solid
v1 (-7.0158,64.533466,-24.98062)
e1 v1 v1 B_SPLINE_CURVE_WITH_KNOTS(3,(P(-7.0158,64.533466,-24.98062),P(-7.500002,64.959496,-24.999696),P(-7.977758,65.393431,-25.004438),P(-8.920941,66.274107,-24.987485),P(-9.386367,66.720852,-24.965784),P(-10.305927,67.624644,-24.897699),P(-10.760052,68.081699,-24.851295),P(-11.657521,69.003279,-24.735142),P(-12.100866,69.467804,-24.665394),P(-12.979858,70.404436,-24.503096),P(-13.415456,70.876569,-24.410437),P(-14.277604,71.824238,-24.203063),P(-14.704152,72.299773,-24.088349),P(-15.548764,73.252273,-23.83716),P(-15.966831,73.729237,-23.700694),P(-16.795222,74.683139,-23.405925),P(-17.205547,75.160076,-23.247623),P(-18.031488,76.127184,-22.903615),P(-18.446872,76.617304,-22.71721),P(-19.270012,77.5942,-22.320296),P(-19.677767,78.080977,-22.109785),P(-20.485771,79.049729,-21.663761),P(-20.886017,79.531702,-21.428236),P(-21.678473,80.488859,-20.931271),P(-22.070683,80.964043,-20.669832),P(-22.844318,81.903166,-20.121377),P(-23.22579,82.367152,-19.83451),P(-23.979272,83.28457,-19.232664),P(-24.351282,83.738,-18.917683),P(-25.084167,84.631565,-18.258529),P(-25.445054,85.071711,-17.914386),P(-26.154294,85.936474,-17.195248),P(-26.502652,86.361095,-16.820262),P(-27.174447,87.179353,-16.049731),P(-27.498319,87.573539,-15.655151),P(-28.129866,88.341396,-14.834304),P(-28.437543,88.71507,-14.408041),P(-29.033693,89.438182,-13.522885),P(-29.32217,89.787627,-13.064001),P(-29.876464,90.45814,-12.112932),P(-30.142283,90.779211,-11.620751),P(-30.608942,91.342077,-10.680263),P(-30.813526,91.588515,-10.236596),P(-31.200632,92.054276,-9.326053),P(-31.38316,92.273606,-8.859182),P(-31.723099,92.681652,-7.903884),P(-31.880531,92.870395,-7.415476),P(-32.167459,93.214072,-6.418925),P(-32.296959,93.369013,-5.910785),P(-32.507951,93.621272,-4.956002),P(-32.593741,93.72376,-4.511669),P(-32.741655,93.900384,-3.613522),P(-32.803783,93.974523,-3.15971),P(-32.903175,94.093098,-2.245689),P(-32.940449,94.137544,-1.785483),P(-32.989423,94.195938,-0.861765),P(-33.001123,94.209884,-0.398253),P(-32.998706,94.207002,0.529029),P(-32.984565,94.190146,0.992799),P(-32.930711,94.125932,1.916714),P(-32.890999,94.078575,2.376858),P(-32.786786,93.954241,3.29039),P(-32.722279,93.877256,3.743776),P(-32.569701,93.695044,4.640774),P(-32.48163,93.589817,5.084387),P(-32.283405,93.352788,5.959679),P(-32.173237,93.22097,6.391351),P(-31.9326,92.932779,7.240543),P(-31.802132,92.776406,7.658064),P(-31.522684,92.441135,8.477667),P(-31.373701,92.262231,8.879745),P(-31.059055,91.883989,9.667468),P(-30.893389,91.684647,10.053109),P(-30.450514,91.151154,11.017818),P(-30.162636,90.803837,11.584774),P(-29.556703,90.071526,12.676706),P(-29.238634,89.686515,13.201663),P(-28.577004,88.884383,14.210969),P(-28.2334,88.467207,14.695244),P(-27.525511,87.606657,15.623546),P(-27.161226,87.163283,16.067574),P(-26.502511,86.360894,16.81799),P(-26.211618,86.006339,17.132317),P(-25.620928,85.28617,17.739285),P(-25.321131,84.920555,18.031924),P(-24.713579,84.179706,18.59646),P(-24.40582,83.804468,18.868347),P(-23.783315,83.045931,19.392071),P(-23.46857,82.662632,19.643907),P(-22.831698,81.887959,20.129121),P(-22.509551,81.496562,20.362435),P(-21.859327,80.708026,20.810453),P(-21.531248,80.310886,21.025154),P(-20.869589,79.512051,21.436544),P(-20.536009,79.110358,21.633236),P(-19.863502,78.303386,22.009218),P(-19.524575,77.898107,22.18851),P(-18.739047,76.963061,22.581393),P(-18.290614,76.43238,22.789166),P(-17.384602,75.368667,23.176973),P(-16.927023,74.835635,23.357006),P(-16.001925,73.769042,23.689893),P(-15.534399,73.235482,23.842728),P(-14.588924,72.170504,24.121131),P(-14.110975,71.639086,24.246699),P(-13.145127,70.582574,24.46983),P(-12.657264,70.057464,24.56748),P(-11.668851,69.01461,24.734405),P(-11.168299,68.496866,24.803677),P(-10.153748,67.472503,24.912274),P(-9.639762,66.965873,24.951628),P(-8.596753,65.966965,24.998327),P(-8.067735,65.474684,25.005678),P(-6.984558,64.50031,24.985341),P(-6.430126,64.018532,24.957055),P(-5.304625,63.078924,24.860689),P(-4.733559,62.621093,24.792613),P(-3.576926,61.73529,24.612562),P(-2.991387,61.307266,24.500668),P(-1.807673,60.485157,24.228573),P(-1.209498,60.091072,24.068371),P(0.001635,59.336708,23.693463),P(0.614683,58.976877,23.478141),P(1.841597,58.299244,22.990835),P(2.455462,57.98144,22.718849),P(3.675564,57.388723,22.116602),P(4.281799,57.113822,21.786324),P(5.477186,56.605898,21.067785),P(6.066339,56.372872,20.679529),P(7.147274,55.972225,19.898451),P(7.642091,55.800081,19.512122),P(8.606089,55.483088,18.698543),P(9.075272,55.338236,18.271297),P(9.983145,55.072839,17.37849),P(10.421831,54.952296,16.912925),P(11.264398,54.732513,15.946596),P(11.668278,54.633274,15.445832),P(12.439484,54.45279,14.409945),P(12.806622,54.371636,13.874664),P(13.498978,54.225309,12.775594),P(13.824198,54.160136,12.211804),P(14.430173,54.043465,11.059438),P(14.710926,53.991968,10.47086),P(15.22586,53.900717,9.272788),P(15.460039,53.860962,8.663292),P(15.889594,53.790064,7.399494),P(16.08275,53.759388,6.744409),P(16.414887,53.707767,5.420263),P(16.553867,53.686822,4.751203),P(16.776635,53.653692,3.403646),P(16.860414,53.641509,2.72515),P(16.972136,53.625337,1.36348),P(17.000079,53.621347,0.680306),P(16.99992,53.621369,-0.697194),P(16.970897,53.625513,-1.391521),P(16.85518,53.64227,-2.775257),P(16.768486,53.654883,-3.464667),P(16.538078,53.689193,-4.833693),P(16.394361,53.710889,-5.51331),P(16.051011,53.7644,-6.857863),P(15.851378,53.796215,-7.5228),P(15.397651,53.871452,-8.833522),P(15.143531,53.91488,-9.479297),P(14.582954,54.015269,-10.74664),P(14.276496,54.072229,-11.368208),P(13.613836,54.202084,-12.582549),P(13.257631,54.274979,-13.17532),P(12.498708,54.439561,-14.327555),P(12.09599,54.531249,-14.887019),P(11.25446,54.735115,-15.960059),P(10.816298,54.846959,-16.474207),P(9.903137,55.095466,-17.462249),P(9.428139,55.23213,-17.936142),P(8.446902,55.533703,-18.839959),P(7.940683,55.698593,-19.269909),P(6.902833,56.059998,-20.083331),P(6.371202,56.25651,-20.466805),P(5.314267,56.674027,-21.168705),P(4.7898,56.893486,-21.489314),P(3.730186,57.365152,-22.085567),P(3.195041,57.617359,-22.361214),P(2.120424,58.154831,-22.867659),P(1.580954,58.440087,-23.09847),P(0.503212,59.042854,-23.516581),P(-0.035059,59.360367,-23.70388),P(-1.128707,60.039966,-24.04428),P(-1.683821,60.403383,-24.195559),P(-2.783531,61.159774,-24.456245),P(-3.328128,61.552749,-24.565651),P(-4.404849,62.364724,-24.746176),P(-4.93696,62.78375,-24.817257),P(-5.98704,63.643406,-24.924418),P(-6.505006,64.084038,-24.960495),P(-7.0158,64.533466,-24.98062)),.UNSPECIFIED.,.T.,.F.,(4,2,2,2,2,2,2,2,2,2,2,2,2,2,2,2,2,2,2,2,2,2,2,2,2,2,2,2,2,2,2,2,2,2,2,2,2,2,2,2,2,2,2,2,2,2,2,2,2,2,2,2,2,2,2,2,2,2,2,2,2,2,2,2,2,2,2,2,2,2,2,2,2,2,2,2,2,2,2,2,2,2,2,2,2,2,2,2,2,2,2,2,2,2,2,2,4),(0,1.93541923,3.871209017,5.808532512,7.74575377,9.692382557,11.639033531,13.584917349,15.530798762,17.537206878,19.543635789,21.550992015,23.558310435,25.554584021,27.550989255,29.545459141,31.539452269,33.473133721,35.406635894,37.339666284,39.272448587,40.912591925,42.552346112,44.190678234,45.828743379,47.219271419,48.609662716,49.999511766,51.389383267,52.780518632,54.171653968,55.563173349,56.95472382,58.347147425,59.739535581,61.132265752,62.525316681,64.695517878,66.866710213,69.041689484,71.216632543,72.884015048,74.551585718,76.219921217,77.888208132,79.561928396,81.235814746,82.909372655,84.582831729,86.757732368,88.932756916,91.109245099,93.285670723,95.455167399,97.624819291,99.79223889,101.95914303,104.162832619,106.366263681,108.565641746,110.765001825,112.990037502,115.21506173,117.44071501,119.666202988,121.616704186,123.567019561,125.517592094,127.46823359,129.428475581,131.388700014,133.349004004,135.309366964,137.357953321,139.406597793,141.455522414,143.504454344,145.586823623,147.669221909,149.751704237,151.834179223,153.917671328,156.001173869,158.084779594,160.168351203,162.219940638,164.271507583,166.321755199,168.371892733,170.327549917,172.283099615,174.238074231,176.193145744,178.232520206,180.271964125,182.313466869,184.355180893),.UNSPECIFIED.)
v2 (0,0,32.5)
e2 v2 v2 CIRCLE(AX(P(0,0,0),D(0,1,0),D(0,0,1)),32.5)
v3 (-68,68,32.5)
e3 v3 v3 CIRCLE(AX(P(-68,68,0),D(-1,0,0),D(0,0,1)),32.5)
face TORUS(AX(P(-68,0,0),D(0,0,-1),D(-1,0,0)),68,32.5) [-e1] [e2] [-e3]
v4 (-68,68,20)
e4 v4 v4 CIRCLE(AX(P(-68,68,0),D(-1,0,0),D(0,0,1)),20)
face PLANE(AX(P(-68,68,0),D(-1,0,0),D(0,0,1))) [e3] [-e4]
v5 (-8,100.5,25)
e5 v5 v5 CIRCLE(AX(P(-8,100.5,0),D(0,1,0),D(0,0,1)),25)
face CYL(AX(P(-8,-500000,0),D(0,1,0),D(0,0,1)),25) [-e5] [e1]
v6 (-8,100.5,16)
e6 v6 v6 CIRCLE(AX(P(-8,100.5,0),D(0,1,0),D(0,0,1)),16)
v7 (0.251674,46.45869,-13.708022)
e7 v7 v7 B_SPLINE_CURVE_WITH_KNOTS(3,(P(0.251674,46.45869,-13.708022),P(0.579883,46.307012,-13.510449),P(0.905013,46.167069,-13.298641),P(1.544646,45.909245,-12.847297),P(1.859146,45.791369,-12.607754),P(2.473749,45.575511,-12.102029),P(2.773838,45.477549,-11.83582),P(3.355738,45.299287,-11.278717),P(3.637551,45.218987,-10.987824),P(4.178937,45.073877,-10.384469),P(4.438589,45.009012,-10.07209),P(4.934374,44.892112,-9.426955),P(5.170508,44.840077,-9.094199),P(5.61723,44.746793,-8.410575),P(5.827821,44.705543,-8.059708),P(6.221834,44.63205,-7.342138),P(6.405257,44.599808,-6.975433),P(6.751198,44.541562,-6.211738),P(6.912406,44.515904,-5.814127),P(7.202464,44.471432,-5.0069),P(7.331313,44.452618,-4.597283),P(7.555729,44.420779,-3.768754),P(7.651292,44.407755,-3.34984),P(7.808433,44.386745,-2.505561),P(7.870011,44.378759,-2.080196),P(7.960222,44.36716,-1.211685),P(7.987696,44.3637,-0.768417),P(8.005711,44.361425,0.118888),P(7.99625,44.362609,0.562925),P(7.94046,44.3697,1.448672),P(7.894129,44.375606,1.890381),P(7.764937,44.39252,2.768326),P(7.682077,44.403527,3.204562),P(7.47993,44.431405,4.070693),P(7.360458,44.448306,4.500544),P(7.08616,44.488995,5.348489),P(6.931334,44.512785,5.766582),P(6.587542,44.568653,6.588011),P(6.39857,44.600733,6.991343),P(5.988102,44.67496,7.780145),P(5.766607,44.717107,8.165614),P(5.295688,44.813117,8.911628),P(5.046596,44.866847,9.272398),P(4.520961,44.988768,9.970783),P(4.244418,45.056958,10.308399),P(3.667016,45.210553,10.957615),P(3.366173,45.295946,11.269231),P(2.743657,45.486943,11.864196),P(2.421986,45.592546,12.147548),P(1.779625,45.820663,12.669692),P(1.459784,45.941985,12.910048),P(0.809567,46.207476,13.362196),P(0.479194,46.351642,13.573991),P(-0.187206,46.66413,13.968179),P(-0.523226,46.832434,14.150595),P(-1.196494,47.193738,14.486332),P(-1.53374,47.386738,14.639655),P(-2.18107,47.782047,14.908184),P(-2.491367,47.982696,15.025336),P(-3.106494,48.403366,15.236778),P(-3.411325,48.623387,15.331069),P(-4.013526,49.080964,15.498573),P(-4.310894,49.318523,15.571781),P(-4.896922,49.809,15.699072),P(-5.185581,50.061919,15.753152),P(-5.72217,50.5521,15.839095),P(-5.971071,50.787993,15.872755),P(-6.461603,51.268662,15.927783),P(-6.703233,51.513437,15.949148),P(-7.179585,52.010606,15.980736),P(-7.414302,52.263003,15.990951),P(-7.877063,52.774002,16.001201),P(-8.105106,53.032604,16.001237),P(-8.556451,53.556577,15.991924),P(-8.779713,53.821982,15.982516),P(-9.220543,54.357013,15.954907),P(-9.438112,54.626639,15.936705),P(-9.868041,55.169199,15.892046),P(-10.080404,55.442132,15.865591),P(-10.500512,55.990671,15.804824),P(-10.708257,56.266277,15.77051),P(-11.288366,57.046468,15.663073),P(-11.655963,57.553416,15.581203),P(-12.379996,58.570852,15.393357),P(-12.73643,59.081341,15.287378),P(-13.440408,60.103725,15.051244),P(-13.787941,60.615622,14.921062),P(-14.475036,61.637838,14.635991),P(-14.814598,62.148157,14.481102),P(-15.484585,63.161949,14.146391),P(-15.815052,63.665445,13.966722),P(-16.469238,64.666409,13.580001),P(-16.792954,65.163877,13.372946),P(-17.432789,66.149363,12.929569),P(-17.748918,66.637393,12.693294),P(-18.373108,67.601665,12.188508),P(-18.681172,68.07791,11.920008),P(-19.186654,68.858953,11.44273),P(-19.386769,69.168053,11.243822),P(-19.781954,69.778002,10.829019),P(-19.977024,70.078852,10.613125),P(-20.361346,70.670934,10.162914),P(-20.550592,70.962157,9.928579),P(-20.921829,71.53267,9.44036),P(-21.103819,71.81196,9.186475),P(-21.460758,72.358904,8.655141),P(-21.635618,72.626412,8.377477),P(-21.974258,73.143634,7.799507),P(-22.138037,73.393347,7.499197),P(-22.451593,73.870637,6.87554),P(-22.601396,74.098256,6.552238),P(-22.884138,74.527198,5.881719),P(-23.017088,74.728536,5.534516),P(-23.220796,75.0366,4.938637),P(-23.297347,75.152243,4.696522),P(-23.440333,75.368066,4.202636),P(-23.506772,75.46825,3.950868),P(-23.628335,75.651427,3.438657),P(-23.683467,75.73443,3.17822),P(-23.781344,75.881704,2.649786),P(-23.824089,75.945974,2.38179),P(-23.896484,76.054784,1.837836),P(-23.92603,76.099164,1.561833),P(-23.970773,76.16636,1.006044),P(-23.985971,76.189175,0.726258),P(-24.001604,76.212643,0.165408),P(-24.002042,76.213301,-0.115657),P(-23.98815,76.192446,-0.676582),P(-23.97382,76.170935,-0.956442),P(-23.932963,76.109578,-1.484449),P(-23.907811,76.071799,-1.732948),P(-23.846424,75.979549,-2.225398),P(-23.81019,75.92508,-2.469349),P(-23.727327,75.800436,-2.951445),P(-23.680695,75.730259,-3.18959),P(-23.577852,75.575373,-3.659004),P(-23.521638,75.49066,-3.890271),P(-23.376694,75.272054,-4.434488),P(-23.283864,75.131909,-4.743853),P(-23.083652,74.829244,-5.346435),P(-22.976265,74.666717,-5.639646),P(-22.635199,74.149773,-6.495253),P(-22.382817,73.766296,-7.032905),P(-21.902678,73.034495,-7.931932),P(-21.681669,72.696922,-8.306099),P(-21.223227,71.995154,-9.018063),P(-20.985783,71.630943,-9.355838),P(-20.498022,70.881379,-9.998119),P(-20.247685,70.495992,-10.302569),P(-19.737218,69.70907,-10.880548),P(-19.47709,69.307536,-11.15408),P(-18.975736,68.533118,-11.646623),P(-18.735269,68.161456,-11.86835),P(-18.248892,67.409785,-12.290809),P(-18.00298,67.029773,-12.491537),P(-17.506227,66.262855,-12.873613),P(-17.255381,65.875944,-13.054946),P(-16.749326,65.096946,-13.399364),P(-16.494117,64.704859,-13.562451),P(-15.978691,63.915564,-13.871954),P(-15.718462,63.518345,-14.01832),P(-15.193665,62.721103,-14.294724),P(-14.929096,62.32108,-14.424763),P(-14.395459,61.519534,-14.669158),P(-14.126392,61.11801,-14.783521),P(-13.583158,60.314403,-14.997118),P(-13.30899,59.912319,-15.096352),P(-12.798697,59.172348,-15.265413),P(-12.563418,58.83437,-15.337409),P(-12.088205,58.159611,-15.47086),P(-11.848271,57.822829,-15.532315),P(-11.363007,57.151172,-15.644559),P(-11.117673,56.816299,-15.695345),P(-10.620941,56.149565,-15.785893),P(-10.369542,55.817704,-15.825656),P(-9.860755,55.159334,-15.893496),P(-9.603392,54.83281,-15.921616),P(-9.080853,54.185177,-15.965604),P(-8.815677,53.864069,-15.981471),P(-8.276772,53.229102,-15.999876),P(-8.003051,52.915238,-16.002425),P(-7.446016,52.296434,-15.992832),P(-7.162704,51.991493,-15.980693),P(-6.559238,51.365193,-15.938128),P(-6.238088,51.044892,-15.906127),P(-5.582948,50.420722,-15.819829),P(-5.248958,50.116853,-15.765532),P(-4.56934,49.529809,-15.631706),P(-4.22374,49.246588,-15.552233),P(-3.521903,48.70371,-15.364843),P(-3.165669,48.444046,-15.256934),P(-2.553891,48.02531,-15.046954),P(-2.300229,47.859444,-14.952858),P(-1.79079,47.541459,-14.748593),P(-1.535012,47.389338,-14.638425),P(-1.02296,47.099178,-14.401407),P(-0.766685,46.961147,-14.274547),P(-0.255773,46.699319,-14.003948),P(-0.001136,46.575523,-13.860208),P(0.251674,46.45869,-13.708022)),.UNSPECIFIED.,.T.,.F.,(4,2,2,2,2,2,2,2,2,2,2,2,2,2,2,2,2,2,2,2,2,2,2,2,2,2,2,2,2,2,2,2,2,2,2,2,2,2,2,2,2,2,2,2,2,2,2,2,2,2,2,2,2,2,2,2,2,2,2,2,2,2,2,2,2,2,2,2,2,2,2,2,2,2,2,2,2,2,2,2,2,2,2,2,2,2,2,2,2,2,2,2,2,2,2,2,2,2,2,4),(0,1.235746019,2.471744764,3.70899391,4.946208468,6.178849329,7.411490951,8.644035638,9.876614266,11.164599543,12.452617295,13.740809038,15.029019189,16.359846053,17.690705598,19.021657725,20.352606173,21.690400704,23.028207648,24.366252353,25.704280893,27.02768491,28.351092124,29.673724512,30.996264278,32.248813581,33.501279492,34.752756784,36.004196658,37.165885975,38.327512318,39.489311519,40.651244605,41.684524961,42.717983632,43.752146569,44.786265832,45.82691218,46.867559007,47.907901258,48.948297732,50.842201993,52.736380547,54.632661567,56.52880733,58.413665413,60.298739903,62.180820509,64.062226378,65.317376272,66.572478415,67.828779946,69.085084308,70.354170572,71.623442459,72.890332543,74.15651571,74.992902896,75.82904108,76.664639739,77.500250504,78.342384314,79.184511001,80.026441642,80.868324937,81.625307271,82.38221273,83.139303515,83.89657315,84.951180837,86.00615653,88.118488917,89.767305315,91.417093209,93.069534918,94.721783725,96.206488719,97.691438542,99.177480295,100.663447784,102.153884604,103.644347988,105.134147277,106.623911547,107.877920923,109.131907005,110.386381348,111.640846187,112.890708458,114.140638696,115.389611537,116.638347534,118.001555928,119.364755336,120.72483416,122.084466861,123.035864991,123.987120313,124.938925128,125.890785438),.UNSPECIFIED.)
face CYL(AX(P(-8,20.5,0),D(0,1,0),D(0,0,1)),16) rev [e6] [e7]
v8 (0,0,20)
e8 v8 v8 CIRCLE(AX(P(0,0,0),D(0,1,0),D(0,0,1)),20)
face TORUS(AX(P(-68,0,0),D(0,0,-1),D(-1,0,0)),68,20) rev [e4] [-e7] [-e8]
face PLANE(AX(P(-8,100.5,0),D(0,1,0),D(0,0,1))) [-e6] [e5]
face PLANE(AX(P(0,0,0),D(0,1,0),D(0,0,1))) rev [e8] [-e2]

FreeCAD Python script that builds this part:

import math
import FreeCAD as App
import Part
import Sketcher
Q = App.Units.Quantity

doc = App.newDocument("Part")
body = doc.addObject("PartDesign::Body", "Body")

# Sketch on XZ plane
sketch1 = body.newObject("Sketcher::SketchObject", "Sketch")
sketch1.AttachmentSupport = (doc.getObject("XZ_Plane"), [""])
sketch1.MapMode = "FlatFace"
sketch1.addGeometry([
    Part.Circle(App.Vector(0, 0, 0), App.Vector(0, 0, 1), 32),
    Part.Circle(App.Vector(0, 0, 0), App.Vector(0, 0, 1), 20),
], False)
sketch1.addConstraint([
    Sketcher.Constraint("Coincident", 0, 3, -1, 1),
    Sketcher.Constraint("Coincident", 1, 3, -1, 1),
    Sketcher.Constraint("Diameter", 0, Q("65 mm")),
    Sketcher.Constraint("Diameter", 1, Q("40 mm")),
])

# Sketch on XY plane
sketch2 = body.newObject("Sketcher::SketchObject", "Sketch001")
sketch2.AttachmentSupport = (doc.getObject("XY_Plane"), [""])
sketch2.MapMode = "FlatFace"
sketch2.addGeometry(Part.ArcOfCircle(Part.Circle(App.Vector(-68, 0, 0), App.Vector(0, 0, 1), 68), math.radians(0), math.radians(90)), False)
sketch2.addConstraint([
    Sketcher.Constraint("Coincident", 0, 1, -1, 1),
    Sketcher.Constraint("PointOnObject", 0, 3, -1),
    Sketcher.Constraint("Radius", 0, Q("68 mm")),
    Sketcher.Constraint("DistanceX", 0, 2, -1, 1, Q("68 mm")),
])
doc.recompute()

additivepipe = body.newObject("PartDesign::AdditivePipe", "AdditivePipe")
additivepipe.Profile = sketch1
additivepipe.Spine = (sketch2, ["Edge1"])

# Sketch on XZ plane
sketch3 = body.newObject("Sketcher::SketchObject", "Sketch002")
sketch3.AttachmentSupport = (doc.getObject("XZ_Plane"), [""])
sketch3.MapMode = "FlatFace"
sketch3.AttachmentOffset = App.Placement(App.Vector(0, 0, -100.5), App.Rotation())
sketch3.addGeometry(Part.Circle(App.Vector(-8, 0, 0), App.Vector(0, 0, 1), 25), False)
sketch3.addConstraint([
    Sketcher.Constraint("PointOnObject", 0, 3, -1),
    Sketcher.Constraint("Diameter", 0, Q("50 mm")),
    Sketcher.Constraint("DistanceX", 0, 3, -1, 1, Q("8 mm")),
])
pad1 = body.newObject("PartDesign::Pad", "Pad")
pad1.Profile = sketch3
pad1.Type = "UpToFirst"

# Sketch on XZ plane
sketch4 = body.newObject("Sketcher::SketchObject", "Sketch003")
sketch4.AttachmentSupport = (doc.getObject("XZ_Plane"), [""])
sketch4.MapMode = "FlatFace"
sketch4.AttachmentOffset = App.Placement(App.Vector(0, 0, -100.5), App.Rotation())
sketch4.addGeometry(Part.Circle(App.Vector(-8, 0, 0), App.Vector(0, 0, 1), 16), False)
sketch4.addConstraint([
    Sketcher.Constraint("PointOnObject", 0, 3, -1),
    Sketcher.Constraint("Diameter", 0, Q("32 mm")),
    Sketcher.Constraint("DistanceX", 0, 3, -1, 1, Q("8 mm")),
])
pocket1 = body.newObject("PartDesign::Pocket", "Pocket")
pocket1.Profile = sketch4
pocket1.Length = 80
pocket1.Reversed = True

doc.recompute()
